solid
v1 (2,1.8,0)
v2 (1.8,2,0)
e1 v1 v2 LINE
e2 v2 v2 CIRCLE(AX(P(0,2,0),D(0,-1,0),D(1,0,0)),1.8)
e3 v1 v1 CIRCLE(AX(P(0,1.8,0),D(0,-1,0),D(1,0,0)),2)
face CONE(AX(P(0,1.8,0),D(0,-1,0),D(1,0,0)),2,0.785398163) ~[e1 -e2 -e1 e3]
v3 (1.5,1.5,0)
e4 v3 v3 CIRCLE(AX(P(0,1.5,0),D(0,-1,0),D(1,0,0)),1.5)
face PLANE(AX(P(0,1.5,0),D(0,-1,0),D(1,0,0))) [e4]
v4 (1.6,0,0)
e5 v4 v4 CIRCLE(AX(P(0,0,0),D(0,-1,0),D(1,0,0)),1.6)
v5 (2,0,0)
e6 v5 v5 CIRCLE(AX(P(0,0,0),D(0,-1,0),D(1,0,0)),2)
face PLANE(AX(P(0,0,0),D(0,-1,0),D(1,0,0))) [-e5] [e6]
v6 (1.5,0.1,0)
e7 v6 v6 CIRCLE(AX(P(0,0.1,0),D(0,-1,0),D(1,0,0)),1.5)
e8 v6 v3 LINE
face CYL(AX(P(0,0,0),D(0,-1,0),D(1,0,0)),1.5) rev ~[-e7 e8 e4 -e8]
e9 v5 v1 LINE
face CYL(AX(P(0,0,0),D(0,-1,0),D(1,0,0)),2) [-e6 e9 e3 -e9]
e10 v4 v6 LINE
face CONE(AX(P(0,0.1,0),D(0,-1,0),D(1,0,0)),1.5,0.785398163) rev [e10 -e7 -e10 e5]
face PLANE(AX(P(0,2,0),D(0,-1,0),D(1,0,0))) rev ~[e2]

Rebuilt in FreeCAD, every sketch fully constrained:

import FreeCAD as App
import Part
import Sketcher

V = App.Vector
Q = App.Units.Quantity


def edges_at(feature, points):
    """Names of the edges that pass closest to the given points."""
    edges = feature.Shape.Edges
    near = lambda p: min(range(len(edges)), key=lambda i: edges[i].distToShape(Part.Vertex(*p))[0])
    return sorted({f"Edge{near(p) + 1}" for p in points})

doc = App.newDocument("Part")
body = doc.addObject("PartDesign::Body", "Body")

# Sketch on XZ plane
sketch1 = body.newObject("Sketcher::SketchObject", "Sketch")
sketch1.AttachmentSupport = (doc.getObject("XZ_Plane"), [""])
sketch1.MapMode = "FlatFace"
sketch1.addGeometry(Part.Circle(V(0, 0, 0), V(0, 0, 1), 2), False)
sketch1.addConstraint([
    Sketcher.Constraint("Coincident", 0, 3, -1, 1),
    Sketcher.Constraint("Diameter", 0, Q("4 mm")),
])
pad1 = body.newObject("PartDesign::Pad", "Pad")
pad1.Profile = sketch1
pad1.Length = 2
pad1.Reversed = True

# Sketch on XZ plane
sketch2 = body.newObject("Sketcher::SketchObject", "Sketch001")
sketch2.AttachmentSupport = (doc.getObject("XZ_Plane"), [""])
sketch2.MapMode = "FlatFace"
sketch2.addGeometry(Part.Circle(V(0, 0, 0), V(0, 0, 1), 1.5), False)
sketch2.addConstraint([
    Sketcher.Constraint("Coincident", 0, 3, -1, 1),
    Sketcher.Constraint("Diameter", 0, Q("3 mm")),
])
pocket1 = body.newObject("PartDesign::Pocket", "Pocket")
pocket1.Profile = sketch2
pocket1.Length = 1.5
doc.recompute()

chamfer = body.newObject("PartDesign::Chamfer", "Chamfer")
chamfer.Base = (pocket1, edges_at(pocket1, [(-2, 2, 0)]))
chamfer.Size = 0.2
doc.recompute()

chamfer2 = body.newObject("PartDesign::Chamfer", "Chamfer001")
chamfer2.Base = (chamfer, edges_at(chamfer, [(-1.5, 0, 0)]))
chamfer2.Size = 0.1

doc.recompute()
